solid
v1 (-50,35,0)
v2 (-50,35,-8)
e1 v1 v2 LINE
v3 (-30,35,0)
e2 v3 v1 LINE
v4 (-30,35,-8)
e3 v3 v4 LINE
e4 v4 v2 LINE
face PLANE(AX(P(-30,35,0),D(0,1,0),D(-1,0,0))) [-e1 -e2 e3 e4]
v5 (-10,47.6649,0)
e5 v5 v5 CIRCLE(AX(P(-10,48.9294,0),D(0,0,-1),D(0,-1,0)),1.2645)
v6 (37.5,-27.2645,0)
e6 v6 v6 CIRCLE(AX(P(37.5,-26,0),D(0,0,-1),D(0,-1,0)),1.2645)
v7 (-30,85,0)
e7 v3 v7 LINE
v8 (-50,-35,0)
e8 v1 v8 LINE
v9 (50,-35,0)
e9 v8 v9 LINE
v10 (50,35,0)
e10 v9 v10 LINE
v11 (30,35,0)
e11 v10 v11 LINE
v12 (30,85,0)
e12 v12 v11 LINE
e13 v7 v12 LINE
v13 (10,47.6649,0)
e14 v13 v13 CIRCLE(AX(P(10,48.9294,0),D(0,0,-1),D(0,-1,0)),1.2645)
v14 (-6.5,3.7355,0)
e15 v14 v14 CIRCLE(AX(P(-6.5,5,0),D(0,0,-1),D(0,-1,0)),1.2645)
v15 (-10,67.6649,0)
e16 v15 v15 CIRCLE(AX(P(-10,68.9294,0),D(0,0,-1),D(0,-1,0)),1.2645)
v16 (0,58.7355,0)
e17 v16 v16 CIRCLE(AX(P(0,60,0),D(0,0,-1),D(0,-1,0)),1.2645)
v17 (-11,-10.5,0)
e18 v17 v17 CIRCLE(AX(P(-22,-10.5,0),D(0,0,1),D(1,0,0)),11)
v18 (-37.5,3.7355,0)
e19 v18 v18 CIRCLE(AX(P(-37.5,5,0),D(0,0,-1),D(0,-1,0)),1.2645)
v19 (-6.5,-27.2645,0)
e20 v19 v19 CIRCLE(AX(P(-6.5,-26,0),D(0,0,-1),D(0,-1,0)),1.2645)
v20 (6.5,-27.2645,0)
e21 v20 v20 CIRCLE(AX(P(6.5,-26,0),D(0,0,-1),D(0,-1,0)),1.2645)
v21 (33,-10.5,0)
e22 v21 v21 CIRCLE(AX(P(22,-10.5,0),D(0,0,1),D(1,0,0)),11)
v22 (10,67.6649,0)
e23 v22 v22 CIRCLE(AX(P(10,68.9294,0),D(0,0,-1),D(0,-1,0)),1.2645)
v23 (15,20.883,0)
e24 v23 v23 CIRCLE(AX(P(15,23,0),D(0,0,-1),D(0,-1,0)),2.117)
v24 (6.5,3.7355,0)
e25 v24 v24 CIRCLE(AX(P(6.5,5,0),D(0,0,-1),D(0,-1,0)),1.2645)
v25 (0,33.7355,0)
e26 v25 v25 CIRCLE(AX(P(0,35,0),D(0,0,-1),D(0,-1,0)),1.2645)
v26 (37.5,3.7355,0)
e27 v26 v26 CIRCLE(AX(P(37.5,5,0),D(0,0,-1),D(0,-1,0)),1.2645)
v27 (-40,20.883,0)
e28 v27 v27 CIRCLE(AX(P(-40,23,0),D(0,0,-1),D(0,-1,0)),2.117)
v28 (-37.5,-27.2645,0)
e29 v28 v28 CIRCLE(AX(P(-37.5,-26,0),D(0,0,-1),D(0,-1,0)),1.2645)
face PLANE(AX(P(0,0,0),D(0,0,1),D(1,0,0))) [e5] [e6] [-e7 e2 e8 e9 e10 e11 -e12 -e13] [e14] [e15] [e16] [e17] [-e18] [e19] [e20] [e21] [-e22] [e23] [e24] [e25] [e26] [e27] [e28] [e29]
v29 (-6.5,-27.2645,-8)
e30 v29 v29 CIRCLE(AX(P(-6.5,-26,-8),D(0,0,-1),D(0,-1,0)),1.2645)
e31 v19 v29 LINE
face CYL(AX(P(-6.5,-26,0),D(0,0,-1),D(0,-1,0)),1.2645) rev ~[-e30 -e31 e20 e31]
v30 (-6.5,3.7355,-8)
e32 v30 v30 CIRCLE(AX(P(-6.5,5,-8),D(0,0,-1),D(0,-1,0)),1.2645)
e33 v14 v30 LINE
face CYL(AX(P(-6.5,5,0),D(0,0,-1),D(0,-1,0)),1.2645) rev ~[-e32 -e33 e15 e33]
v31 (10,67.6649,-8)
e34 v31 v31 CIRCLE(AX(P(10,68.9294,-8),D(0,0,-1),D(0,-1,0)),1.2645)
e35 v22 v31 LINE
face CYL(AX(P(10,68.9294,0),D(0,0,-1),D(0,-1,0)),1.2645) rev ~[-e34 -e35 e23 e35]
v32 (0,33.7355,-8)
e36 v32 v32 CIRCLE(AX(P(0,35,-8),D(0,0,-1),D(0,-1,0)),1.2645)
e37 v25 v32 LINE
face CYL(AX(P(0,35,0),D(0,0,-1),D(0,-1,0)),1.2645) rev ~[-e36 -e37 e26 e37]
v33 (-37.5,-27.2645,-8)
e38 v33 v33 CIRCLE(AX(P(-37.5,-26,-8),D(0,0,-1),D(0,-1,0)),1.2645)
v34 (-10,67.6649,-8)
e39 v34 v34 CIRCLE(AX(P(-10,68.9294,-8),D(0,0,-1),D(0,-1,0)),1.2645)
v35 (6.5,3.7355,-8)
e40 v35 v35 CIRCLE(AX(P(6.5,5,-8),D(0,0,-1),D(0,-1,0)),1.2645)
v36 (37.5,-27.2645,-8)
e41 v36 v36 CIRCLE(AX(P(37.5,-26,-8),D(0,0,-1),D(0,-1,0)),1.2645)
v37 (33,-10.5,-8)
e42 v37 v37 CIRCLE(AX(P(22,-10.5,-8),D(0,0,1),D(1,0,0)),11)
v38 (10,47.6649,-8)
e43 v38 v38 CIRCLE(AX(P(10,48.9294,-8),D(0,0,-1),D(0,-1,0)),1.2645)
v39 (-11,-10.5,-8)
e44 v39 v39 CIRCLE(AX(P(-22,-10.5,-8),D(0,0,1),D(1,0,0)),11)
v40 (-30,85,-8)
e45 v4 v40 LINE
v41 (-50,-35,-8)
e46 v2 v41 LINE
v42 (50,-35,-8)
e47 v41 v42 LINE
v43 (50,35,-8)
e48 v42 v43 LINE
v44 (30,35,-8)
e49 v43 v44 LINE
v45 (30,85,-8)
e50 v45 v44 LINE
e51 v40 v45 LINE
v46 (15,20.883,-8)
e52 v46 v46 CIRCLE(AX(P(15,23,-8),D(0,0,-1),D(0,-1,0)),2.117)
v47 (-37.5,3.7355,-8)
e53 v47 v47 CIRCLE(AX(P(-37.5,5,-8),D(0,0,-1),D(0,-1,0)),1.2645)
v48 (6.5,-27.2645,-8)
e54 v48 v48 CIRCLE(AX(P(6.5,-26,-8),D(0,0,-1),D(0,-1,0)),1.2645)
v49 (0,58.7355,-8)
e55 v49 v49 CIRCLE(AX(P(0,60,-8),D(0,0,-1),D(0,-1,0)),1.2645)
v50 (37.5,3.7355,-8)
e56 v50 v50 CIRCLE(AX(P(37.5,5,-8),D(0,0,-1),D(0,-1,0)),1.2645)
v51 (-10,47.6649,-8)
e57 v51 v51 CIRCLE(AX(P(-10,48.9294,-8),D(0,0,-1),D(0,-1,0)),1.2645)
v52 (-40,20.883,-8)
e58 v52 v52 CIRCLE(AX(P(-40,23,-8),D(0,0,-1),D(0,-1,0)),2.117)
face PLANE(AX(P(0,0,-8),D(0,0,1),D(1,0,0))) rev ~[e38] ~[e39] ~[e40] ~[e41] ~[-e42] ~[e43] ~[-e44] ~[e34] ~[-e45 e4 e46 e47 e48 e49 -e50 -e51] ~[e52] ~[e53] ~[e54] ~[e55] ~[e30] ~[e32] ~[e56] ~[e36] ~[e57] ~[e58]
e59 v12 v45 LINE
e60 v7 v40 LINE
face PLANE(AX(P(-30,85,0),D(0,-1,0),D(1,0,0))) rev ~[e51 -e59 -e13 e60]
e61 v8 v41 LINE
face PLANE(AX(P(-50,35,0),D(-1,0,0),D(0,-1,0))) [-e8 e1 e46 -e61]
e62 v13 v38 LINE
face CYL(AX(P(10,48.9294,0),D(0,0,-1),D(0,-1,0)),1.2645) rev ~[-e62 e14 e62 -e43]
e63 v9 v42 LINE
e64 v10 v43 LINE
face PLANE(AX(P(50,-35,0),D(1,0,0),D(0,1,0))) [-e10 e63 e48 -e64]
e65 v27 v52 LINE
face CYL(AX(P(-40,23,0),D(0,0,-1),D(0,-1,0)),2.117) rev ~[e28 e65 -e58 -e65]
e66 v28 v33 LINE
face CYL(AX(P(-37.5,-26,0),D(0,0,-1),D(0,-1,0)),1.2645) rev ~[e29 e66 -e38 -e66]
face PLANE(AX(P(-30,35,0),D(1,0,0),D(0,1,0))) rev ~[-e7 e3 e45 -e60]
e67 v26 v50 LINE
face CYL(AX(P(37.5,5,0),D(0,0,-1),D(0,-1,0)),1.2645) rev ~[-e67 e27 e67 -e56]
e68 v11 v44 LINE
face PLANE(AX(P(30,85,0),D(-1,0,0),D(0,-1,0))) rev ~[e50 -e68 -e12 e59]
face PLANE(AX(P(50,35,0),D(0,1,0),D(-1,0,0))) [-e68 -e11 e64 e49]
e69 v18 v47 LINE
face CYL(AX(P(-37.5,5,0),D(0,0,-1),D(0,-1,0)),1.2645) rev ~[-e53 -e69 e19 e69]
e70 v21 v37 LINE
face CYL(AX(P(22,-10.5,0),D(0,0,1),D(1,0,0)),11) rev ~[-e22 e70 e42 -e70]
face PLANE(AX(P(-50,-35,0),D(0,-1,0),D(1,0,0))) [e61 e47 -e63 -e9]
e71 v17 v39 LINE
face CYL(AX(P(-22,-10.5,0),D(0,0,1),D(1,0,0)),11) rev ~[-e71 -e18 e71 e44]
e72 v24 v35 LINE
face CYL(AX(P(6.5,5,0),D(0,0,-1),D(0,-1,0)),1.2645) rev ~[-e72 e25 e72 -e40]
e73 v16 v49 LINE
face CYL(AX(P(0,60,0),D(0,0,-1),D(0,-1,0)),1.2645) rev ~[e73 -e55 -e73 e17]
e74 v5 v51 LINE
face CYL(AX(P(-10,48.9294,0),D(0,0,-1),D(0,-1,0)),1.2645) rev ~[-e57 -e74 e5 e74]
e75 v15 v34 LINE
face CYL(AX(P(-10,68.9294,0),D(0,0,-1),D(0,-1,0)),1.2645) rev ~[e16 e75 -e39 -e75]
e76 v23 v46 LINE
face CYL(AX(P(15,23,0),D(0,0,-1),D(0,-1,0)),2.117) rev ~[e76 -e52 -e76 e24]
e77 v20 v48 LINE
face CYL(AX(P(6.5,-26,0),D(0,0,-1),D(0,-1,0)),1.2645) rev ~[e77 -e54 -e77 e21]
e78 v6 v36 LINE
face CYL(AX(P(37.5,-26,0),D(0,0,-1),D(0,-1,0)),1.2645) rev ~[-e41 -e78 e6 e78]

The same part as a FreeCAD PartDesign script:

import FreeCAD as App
import Part
import Sketcher
Q = App.Units.Quantity

doc = App.newDocument("Part")
body = doc.addObject("PartDesign::Body", "Body")

# Sketch on XY plane
sketch1 = doc.addObject("Sketcher::SketchObject", "Sketch")
body.addObject(sketch1)
sketch1.AttachmentSupport = (doc.XY_Plane, [""])
sketch1.MapMode = "FlatFace"
sketch1.addGeometry([
    Part.LineSegment(App.Vector(50, -35, 0), App.Vector(50, 35, 0)),  # 0
    Part.LineSegment(App.Vector(50, 35, 0), App.Vector(30, 35, 0)),  # 1
    Part.LineSegment(App.Vector(30, 35, 0), App.Vector(30, 85, 0)),  # 2
    Part.LineSegment(App.Vector(30, 85, 0), App.Vector(-30, 85, 0)),  # 3
    Part.LineSegment(App.Vector(-30, 85, 0), App.Vector(-30, 35, 0)),  # 4
    Part.LineSegment(App.Vector(-30, 35, 0), App.Vector(-50, 35, 0)),  # 5
    Part.LineSegment(App.Vector(-50, 35, 0), App.Vector(-50, -35, 0)),  # 6
    Part.LineSegment(App.Vector(-50, -35, 0), App.Vector(50, -35, 0)),  # 7
], False)
sketch1.addConstraint([
    Sketcher.Constraint("Coincident", 0, 2, 1, 1),
    Sketcher.Constraint("Coincident", 1, 2, 2, 1),
    Sketcher.Constraint("Coincident", 2, 2, 3, 1),
    Sketcher.Constraint("Coincident", 3, 2, 4, 1),
    Sketcher.Constraint("Coincident", 4, 2, 5, 1),
    Sketcher.Constraint("Coincident", 5, 2, 6, 1),
    Sketcher.Constraint("Coincident", 6, 2, 7, 1),
    Sketcher.Constraint("Coincident", 7, 2, 0, 1),
    Sketcher.Constraint("Vertical", 0),
    Sketcher.Constraint("Horizontal", 1),
    Sketcher.Constraint("Vertical", 2),
    Sketcher.Constraint("Horizontal", 3),
    Sketcher.Constraint("Vertical", 4),
    Sketcher.Constraint("Horizontal", 5),
    Sketcher.Constraint("Vertical", 6),
    Sketcher.Constraint("Horizontal", 7),
    Sketcher.Constraint("Symmetric", 0, 2, 6, 2, -1, 1),
    Sketcher.Constraint("Symmetric", 1, 2, 4, 2, -2),
    Sketcher.Constraint("DistanceX", 1, 2, 1, 1, Q("20 mm")),
    Sketcher.Constraint("DistanceX", 3, 2, 3, 1, Q("60 mm")),
    Sketcher.Constraint("DistanceY", 0, 1, 0, 2, Q("70 mm")),
    Sketcher.Constraint("DistanceY", 2, 1, 2, 2, Q("50 mm")),
])
pad1 = doc.addObject("PartDesign::Pad", "Pad")
body.addObject(pad1)
pad1.Profile = sketch1
pad1.Length = 8
pad1.Reversed = True

# Sketch on XY plane
sketch2 = doc.addObject("Sketcher::SketchObject", "Sketch001")
body.addObject(sketch2)
sketch2.AttachmentSupport = (doc.XY_Plane, [""])
sketch2.MapMode = "FlatFace"
sketch2.addGeometry([
    Part.Circle(App.Vector(-37.5, 5, 0), App.Vector(0, 0, 1), 1.3),  # 0
    Part.Circle(App.Vector(-37.5, -26, 0), App.Vector(0, 0, 1), 1.3),  # 1
    Part.Circle(App.Vector(-6.5, -26, 0), App.Vector(0, 0, 1), 1.3),  # 2
    Part.Circle(App.Vector(6.5, -26, 0), App.Vector(0, 0, 1), 1.3),  # 3
    Part.Circle(App.Vector(-6.5, 5, 0), App.Vector(0, 0, 1), 1.3),  # 4
    Part.Circle(App.Vector(6.5, 5, 0), App.Vector(0, 0, 1), 1.3),  # 5
    Part.Circle(App.Vector(37.5, 5, 0), App.Vector(0, 0, 1), 1.3),  # 6
    Part.Circle(App.Vector(37.5, -26, 0), App.Vector(0, 0, 1), 1.3),  # 7
    Part.Circle(App.Vector(-10, 48.9, 0), App.Vector(0, 0, 1), 1.3),  # 8
    Part.Circle(App.Vector(-10, 68.9, 0), App.Vector(0, 0, 1), 1.3),  # 9
    Part.Circle(App.Vector(0, 60, 0), App.Vector(0, 0, 1), 1.3),  # 10
    Part.Circle(App.Vector(10, 68.9, 0), App.Vector(0, 0, 1), 1.3),  # 11
    Part.Circle(App.Vector(0, 35, 0), App.Vector(0, 0, 1), 1.3),  # 12
    Part.Circle(App.Vector(10, 48.9, 0), App.Vector(0, 0, 1), 1.3),  # 13
], False)
sketch2.addConstraint([
    Sketcher.Constraint("Equal", 0, 1),
    Sketcher.Constraint("Equal", 1, 2),
    Sketcher.Constraint("Equal", 2, 3),
    Sketcher.Constraint("Equal", 3, 4),
    Sketcher.Constraint("Equal", 4, 5),
    Sketcher.Constraint("Equal", 5, 6),
    Sketcher.Constraint("Equal", 6, 7),
    Sketcher.Constraint("Equal", 7, 8),
    Sketcher.Constraint("Equal", 8, 9),
    Sketcher.Constraint("Equal", 9, 10),
    Sketcher.Constraint("Equal", 10, 11),
    Sketcher.Constraint("Equal", 11, 12),
    Sketcher.Constraint("Equal", 12, 13),
    Sketcher.Constraint("Symmetric", 2, 3, 3, 3, -2),
    Sketcher.Constraint("Symmetric", 4, 3, 5, 3, -2),
    Sketcher.Constraint("Symmetric", 0, 3, 6, 3, -2),
    Sketcher.Constraint("Symmetric", 1, 3, 7, 3, -2),
    Sketcher.Constraint("Symmetric", 9, 3, 11, 3, -2),
    Sketcher.Constraint("Symmetric", 8, 3, 13, 3, -2),
    Sketcher.Constraint("PointOnObject", 10, 3, -2),
    Sketcher.Constraint("PointOnObject", 12, 3, -2),
    Sketcher.Constraint("Horizontal", 1, 3, 2, 3),
    Sketcher.Constraint("Horizontal", 0, 3, 4, 3),
    Sketcher.Constraint("Vertical", 0, 3, 1, 3),
    Sketcher.Constraint("Vertical", 2, 3, 4, 3),
    Sketcher.Constraint("Vertical", 8, 3, 9, 3),
    Sketcher.Constraint("Diameter", 0, Q("2.529 mm")),
    Sketcher.Constraint("DistanceY", -1, 1, 0, 3, Q("5 mm")),
    Sketcher.Constraint("DistanceY", 1, 3, -1, 1, Q("26 mm")),
    Sketcher.Constraint("DistanceX", 8, 3, -1, 1, Q("10 mm")),
    Sketcher.Constraint("DistanceY", -1, 1, 10, 3, Q("60 mm")),
    Sketcher.Constraint("DistanceY", -1, 1, 12, 3, Q("35 mm")),
    Sketcher.Constraint("DistanceX", 1, 3, 2, 3, Q("31 mm")),
    Sketcher.Constraint("DistanceX", 2, 3, 3, 3, Q("13 mm")),
    Sketcher.Constraint("DistanceY", 8, 3, 9, 3, Q("20 mm")),
    Sketcher.Constraint("DistanceY", -1, 1, 8, 3, Q("48.9294 mm")),
])
doc.recompute()
hole = doc.addObject("PartDesign::Hole", "Hole")
body.addObject(hole)
hole.Profile = sketch2
hole.ThreadType = "None"
hole.Diameter = 2.529
hole.DepthType = "Dimension"
hole.Depth = 40
hole.DrillPoint = "Angled"
hole.DrillPointAngle = 118

# Sketch on XY plane
sketch3 = doc.addObject("Sketcher::SketchObject", "Sketch002")
body.addObject(sketch3)
sketch3.AttachmentSupport = (doc.XY_Plane, [""])
sketch3.MapMode = "FlatFace"
sketch3.addGeometry([
    Part.Circle(App.Vector(15, 23, 0), App.Vector(0, 0, 1), 2.1),
    Part.Circle(App.Vector(-40, 23, 0), App.Vector(0, 0, 1), 2.1),
], False)
sketch3.addConstraint([
    Sketcher.Constraint("Equal", 0, 1),
    Sketcher.Constraint("Horizontal", 0, 3, 1, 3),
    Sketcher.Constraint("Diameter", 0, Q("4.234 mm")),
    Sketcher.Constraint("DistanceX", -1, 1, 0, 3, Q("15 mm")),
    Sketcher.Constraint("DistanceY", -1, 1, 0, 3, Q("23 mm")),
    Sketcher.Constraint("DistanceX", 1, 3, -1, 1, Q("40 mm")),
])
doc.recompute()
hole2 = doc.addObject("PartDesign::Hole", "Hole001")
body.addObject(hole2)
hole2.Profile = sketch3
hole2.ThreadType = "None"
hole2.Diameter = 4.234
hole2.DepthType = "Dimension"
hole2.Depth = 20
hole2.DrillPoint = "Angled"
hole2.DrillPointAngle = 118

# Sketch on XY plane
sketch4 = doc.addObject("Sketcher::SketchObject", "Sketch003")
body.addObject(sketch4)
sketch4.AttachmentSupport = (doc.XY_Plane, [""])
sketch4.MapMode = "FlatFace"
sketch4.addGeometry([
    Part.Circle(App.Vector(-22, -10, 0), App.Vector(0, 0, 1), 11),
    Part.Circle(App.Vector(22, -10, 0), App.Vector(0, 0, 1), 11),
], False)
sketch4.addConstraint([
    Sketcher.Constraint("Equal", 0, 1),
    Sketcher.Constraint("Symmetric", 0, 3, 1, 3, -2),
    Sketcher.Constraint("Diameter", 0, Q("22 mm")),
    Sketcher.Constraint("DistanceX", 0, 3, -1, 1, Q("22 mm")),
    Sketcher.Constraint("DistanceY", 0, 3, -1, 1, Q("10.5 mm")),
])
pocket1 = doc.addObject("PartDesign::Pocket", "Pocket")
body.addObject(pocket1)
pocket1.Profile = sketch4
pocket1.Length = 20

doc.recompute()
